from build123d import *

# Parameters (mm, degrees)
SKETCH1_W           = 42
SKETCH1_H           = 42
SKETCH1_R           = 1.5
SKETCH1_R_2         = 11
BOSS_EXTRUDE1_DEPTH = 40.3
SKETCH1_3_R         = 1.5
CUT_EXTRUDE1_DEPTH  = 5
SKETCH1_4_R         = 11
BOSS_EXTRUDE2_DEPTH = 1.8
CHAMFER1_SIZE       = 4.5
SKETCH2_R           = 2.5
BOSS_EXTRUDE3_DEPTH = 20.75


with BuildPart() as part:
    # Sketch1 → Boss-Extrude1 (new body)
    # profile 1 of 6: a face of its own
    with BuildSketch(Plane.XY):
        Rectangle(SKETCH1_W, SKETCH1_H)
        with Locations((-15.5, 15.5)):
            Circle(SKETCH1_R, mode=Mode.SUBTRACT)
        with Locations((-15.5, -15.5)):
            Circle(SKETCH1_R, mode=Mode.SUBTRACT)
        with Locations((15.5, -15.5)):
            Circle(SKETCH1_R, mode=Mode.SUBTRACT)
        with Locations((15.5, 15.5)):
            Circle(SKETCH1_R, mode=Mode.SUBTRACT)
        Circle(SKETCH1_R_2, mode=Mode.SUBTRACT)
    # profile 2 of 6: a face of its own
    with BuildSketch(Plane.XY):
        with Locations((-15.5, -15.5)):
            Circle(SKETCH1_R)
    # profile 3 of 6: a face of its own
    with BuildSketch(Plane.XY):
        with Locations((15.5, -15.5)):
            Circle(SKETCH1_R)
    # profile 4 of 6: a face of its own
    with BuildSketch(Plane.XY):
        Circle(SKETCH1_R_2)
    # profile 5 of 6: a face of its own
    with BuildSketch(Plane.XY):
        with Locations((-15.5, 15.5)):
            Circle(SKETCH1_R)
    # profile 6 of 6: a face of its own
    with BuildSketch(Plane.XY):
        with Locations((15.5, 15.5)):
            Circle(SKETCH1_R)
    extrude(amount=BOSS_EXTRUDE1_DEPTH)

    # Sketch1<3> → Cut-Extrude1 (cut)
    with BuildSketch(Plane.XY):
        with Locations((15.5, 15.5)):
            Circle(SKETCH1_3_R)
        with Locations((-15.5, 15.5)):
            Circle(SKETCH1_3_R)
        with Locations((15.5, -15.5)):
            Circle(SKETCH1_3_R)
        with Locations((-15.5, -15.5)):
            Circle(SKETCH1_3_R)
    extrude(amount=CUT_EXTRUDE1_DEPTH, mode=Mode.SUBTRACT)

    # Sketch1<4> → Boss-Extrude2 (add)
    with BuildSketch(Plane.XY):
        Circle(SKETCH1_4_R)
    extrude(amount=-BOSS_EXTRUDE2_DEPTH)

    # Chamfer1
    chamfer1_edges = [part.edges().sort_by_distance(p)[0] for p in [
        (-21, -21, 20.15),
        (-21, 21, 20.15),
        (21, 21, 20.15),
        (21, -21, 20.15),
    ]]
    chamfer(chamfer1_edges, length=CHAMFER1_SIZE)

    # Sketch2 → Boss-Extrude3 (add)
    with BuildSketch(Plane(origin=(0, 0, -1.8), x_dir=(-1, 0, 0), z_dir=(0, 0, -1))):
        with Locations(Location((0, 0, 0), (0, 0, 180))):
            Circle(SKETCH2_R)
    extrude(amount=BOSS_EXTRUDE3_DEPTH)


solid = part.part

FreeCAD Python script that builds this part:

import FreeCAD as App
import Part
import Sketcher
from FreeCAD import Vector
Q = App.Units.Quantity


def edges_at(feature, points):
    """Names of the edges that pass closest to the given points."""
    edges = feature.Shape.Edges
    near = lambda p: min(range(len(edges)), key=lambda i: edges[i].distToShape(Part.Vertex(*p))[0])
    return sorted({f"Edge{near(p) + 1}" for p in points})


def add_polygon(sketch, points):
    """Adds a closed chain of lines whose ends are joined by coincident constraints."""
    first, n = sketch.GeometryCount, len(points)
    for a, b in zip(points, points[1:] + points[:1]):
        sketch.addGeometry(Part.LineSegment(App.Vector(*a, 0), App.Vector(*b, 0)), False)
    for i in range(n):
        sketch.addConstraint(Sketcher.Constraint("Coincident", first + i, 2, first + (i + 1) % n, 1))

doc = App.newDocument("Part")
body = doc.addObject("PartDesign::Body", "Body")

# Sketch on XY plane
sketch1 = doc.addObject("Sketcher::SketchObject", "Sketch")
body.addObject(sketch1)
sketch1.AttachmentSupport = (doc.XY_Plane, [""])
sketch1.MapMode = "FlatFace"
add_polygon(sketch1, [(-21, 21), (-21, -21), (21, -21), (21, 21)])  # lines 0-3
sketch1.addConstraint([
    Sketcher.Constraint("Vertical", 0),
    Sketcher.Constraint("Horizontal", 1),
    Sketcher.Constraint("Vertical", 2),
    Sketcher.Constraint("Horizontal", 3),
    Sketcher.Constraint("Symmetric", 0, 2, 2, 2, -1, 1),
    Sketcher.Constraint("Equal", 3, 0),
    Sketcher.Constraint("DistanceX", 1, 1, 1, 2, Q("42 mm")),
])
pad1 = doc.addObject("PartDesign::Pad", "Pad")
body.addObject(pad1)
pad1.Profile = sketch1
pad1.Length = 40.3

# Sketch on XY plane
sketch2 = doc.addObject("Sketcher::SketchObject", "Sketch001")
body.addObject(sketch2)
sketch2.AttachmentSupport = (doc.XY_Plane, [""])
sketch2.MapMode = "FlatFace"
sketch2.addGeometry([
    Part.Circle(Vector(15.5, 15.5, 0), Vector(0, 0, 1), 1.5),
    Part.Circle(Vector(-15.5, 15.5, 0), Vector(0, 0, 1), 1.5),
    Part.Circle(Vector(15.5, -15.5, 0), Vector(0, 0, 1), 1.5),
    Part.Circle(Vector(-15.5, -15.5, 0), Vector(0, 0, 1), 1.5),
], False)
sketch2.addConstraint([
    Sketcher.Constraint("Equal", 0, 1),
    Sketcher.Constraint("Equal", 1, 2),
    Sketcher.Constraint("Equal", 2, 3),
    Sketcher.Constraint("Symmetric", 1, 3, 2, 3, -1, 1),
    Sketcher.Constraint("Symmetric", 0, 3, 3, 3, -1, 1),
    Sketcher.Constraint("Symmetric", 0, 3, 1, 3, -2),
    Sketcher.Constraint("Diameter", 0, Q("3 mm")),
    Sketcher.Constraint("DistanceX", 1, 3, 0, 3, Q("31 mm")),
    Sketcher.Constraint("DistanceY", 2, 3, 0, 3, Q("31 mm")),
])
pocket1 = doc.addObject("PartDesign::Pocket", "Pocket")
body.addObject(pocket1)
pocket1.Profile = sketch2
pocket1.Length = 5
pocket1.Reversed = True

# Sketch on XY plane
sketch3 = doc.addObject("Sketcher::SketchObject", "Sketch002")
body.addObject(sketch3)
sketch3.AttachmentSupport = (doc.XY_Plane, [""])
sketch3.MapMode = "FlatFace"
sketch3.addGeometry(Part.Circle(Vector(0, 0, 0), Vector(0, 0, 1), 11), False)
sketch3.addConstraint([
    Sketcher.Constraint("Coincident", 0, 3, -1, 1),
    Sketcher.Constraint("Diameter", 0, Q("22 mm")),
])
pad2 = doc.addObject("PartDesign::Pad", "Pad001")
body.addObject(pad2)
pad2.Profile = sketch3
pad2.Length = 1.8
pad2.Reversed = True
doc.recompute()

chamfer = doc.addObject("PartDesign::Chamfer", "Chamfer")
body.addObject(chamfer)
chamfer.Base = (pad2, edges_at(pad2, [
    (-21, -21, 20.15),
    (-21, 21, 20.15),
    (21, 21, 20.15),
    (21, -21, 20.15),
]))
chamfer.Size = 4.5

# Sketch on XY plane
sketch4 = doc.addObject("Sketcher::SketchObject", "Sketch003")
body.addObject(sketch4)
sketch4.AttachmentSupport = (doc.XY_Plane, [""])
sketch4.MapMode = "FlatFace"
sketch4.AttachmentOffset = App.Placement(Vector(0, 0, -1.8), App.Rotation())
sketch4.addGeometry(Part.Circle(Vector(0, 0, 0), Vector(0, 0, 1), 2.5), False)
sketch4.addConstraint([
    Sketcher.Constraint("Coincident", 0, 3, -1, 1),
    Sketcher.Constraint("Diameter", 0, Q("5 mm")),
])
pad3 = doc.addObject("PartDesign::Pad", "Pad002")
body.addObject(pad3)
pad3.Profile = sketch4
pad3.Length = 20.75
pad3.Reversed = True

doc.recompute()
